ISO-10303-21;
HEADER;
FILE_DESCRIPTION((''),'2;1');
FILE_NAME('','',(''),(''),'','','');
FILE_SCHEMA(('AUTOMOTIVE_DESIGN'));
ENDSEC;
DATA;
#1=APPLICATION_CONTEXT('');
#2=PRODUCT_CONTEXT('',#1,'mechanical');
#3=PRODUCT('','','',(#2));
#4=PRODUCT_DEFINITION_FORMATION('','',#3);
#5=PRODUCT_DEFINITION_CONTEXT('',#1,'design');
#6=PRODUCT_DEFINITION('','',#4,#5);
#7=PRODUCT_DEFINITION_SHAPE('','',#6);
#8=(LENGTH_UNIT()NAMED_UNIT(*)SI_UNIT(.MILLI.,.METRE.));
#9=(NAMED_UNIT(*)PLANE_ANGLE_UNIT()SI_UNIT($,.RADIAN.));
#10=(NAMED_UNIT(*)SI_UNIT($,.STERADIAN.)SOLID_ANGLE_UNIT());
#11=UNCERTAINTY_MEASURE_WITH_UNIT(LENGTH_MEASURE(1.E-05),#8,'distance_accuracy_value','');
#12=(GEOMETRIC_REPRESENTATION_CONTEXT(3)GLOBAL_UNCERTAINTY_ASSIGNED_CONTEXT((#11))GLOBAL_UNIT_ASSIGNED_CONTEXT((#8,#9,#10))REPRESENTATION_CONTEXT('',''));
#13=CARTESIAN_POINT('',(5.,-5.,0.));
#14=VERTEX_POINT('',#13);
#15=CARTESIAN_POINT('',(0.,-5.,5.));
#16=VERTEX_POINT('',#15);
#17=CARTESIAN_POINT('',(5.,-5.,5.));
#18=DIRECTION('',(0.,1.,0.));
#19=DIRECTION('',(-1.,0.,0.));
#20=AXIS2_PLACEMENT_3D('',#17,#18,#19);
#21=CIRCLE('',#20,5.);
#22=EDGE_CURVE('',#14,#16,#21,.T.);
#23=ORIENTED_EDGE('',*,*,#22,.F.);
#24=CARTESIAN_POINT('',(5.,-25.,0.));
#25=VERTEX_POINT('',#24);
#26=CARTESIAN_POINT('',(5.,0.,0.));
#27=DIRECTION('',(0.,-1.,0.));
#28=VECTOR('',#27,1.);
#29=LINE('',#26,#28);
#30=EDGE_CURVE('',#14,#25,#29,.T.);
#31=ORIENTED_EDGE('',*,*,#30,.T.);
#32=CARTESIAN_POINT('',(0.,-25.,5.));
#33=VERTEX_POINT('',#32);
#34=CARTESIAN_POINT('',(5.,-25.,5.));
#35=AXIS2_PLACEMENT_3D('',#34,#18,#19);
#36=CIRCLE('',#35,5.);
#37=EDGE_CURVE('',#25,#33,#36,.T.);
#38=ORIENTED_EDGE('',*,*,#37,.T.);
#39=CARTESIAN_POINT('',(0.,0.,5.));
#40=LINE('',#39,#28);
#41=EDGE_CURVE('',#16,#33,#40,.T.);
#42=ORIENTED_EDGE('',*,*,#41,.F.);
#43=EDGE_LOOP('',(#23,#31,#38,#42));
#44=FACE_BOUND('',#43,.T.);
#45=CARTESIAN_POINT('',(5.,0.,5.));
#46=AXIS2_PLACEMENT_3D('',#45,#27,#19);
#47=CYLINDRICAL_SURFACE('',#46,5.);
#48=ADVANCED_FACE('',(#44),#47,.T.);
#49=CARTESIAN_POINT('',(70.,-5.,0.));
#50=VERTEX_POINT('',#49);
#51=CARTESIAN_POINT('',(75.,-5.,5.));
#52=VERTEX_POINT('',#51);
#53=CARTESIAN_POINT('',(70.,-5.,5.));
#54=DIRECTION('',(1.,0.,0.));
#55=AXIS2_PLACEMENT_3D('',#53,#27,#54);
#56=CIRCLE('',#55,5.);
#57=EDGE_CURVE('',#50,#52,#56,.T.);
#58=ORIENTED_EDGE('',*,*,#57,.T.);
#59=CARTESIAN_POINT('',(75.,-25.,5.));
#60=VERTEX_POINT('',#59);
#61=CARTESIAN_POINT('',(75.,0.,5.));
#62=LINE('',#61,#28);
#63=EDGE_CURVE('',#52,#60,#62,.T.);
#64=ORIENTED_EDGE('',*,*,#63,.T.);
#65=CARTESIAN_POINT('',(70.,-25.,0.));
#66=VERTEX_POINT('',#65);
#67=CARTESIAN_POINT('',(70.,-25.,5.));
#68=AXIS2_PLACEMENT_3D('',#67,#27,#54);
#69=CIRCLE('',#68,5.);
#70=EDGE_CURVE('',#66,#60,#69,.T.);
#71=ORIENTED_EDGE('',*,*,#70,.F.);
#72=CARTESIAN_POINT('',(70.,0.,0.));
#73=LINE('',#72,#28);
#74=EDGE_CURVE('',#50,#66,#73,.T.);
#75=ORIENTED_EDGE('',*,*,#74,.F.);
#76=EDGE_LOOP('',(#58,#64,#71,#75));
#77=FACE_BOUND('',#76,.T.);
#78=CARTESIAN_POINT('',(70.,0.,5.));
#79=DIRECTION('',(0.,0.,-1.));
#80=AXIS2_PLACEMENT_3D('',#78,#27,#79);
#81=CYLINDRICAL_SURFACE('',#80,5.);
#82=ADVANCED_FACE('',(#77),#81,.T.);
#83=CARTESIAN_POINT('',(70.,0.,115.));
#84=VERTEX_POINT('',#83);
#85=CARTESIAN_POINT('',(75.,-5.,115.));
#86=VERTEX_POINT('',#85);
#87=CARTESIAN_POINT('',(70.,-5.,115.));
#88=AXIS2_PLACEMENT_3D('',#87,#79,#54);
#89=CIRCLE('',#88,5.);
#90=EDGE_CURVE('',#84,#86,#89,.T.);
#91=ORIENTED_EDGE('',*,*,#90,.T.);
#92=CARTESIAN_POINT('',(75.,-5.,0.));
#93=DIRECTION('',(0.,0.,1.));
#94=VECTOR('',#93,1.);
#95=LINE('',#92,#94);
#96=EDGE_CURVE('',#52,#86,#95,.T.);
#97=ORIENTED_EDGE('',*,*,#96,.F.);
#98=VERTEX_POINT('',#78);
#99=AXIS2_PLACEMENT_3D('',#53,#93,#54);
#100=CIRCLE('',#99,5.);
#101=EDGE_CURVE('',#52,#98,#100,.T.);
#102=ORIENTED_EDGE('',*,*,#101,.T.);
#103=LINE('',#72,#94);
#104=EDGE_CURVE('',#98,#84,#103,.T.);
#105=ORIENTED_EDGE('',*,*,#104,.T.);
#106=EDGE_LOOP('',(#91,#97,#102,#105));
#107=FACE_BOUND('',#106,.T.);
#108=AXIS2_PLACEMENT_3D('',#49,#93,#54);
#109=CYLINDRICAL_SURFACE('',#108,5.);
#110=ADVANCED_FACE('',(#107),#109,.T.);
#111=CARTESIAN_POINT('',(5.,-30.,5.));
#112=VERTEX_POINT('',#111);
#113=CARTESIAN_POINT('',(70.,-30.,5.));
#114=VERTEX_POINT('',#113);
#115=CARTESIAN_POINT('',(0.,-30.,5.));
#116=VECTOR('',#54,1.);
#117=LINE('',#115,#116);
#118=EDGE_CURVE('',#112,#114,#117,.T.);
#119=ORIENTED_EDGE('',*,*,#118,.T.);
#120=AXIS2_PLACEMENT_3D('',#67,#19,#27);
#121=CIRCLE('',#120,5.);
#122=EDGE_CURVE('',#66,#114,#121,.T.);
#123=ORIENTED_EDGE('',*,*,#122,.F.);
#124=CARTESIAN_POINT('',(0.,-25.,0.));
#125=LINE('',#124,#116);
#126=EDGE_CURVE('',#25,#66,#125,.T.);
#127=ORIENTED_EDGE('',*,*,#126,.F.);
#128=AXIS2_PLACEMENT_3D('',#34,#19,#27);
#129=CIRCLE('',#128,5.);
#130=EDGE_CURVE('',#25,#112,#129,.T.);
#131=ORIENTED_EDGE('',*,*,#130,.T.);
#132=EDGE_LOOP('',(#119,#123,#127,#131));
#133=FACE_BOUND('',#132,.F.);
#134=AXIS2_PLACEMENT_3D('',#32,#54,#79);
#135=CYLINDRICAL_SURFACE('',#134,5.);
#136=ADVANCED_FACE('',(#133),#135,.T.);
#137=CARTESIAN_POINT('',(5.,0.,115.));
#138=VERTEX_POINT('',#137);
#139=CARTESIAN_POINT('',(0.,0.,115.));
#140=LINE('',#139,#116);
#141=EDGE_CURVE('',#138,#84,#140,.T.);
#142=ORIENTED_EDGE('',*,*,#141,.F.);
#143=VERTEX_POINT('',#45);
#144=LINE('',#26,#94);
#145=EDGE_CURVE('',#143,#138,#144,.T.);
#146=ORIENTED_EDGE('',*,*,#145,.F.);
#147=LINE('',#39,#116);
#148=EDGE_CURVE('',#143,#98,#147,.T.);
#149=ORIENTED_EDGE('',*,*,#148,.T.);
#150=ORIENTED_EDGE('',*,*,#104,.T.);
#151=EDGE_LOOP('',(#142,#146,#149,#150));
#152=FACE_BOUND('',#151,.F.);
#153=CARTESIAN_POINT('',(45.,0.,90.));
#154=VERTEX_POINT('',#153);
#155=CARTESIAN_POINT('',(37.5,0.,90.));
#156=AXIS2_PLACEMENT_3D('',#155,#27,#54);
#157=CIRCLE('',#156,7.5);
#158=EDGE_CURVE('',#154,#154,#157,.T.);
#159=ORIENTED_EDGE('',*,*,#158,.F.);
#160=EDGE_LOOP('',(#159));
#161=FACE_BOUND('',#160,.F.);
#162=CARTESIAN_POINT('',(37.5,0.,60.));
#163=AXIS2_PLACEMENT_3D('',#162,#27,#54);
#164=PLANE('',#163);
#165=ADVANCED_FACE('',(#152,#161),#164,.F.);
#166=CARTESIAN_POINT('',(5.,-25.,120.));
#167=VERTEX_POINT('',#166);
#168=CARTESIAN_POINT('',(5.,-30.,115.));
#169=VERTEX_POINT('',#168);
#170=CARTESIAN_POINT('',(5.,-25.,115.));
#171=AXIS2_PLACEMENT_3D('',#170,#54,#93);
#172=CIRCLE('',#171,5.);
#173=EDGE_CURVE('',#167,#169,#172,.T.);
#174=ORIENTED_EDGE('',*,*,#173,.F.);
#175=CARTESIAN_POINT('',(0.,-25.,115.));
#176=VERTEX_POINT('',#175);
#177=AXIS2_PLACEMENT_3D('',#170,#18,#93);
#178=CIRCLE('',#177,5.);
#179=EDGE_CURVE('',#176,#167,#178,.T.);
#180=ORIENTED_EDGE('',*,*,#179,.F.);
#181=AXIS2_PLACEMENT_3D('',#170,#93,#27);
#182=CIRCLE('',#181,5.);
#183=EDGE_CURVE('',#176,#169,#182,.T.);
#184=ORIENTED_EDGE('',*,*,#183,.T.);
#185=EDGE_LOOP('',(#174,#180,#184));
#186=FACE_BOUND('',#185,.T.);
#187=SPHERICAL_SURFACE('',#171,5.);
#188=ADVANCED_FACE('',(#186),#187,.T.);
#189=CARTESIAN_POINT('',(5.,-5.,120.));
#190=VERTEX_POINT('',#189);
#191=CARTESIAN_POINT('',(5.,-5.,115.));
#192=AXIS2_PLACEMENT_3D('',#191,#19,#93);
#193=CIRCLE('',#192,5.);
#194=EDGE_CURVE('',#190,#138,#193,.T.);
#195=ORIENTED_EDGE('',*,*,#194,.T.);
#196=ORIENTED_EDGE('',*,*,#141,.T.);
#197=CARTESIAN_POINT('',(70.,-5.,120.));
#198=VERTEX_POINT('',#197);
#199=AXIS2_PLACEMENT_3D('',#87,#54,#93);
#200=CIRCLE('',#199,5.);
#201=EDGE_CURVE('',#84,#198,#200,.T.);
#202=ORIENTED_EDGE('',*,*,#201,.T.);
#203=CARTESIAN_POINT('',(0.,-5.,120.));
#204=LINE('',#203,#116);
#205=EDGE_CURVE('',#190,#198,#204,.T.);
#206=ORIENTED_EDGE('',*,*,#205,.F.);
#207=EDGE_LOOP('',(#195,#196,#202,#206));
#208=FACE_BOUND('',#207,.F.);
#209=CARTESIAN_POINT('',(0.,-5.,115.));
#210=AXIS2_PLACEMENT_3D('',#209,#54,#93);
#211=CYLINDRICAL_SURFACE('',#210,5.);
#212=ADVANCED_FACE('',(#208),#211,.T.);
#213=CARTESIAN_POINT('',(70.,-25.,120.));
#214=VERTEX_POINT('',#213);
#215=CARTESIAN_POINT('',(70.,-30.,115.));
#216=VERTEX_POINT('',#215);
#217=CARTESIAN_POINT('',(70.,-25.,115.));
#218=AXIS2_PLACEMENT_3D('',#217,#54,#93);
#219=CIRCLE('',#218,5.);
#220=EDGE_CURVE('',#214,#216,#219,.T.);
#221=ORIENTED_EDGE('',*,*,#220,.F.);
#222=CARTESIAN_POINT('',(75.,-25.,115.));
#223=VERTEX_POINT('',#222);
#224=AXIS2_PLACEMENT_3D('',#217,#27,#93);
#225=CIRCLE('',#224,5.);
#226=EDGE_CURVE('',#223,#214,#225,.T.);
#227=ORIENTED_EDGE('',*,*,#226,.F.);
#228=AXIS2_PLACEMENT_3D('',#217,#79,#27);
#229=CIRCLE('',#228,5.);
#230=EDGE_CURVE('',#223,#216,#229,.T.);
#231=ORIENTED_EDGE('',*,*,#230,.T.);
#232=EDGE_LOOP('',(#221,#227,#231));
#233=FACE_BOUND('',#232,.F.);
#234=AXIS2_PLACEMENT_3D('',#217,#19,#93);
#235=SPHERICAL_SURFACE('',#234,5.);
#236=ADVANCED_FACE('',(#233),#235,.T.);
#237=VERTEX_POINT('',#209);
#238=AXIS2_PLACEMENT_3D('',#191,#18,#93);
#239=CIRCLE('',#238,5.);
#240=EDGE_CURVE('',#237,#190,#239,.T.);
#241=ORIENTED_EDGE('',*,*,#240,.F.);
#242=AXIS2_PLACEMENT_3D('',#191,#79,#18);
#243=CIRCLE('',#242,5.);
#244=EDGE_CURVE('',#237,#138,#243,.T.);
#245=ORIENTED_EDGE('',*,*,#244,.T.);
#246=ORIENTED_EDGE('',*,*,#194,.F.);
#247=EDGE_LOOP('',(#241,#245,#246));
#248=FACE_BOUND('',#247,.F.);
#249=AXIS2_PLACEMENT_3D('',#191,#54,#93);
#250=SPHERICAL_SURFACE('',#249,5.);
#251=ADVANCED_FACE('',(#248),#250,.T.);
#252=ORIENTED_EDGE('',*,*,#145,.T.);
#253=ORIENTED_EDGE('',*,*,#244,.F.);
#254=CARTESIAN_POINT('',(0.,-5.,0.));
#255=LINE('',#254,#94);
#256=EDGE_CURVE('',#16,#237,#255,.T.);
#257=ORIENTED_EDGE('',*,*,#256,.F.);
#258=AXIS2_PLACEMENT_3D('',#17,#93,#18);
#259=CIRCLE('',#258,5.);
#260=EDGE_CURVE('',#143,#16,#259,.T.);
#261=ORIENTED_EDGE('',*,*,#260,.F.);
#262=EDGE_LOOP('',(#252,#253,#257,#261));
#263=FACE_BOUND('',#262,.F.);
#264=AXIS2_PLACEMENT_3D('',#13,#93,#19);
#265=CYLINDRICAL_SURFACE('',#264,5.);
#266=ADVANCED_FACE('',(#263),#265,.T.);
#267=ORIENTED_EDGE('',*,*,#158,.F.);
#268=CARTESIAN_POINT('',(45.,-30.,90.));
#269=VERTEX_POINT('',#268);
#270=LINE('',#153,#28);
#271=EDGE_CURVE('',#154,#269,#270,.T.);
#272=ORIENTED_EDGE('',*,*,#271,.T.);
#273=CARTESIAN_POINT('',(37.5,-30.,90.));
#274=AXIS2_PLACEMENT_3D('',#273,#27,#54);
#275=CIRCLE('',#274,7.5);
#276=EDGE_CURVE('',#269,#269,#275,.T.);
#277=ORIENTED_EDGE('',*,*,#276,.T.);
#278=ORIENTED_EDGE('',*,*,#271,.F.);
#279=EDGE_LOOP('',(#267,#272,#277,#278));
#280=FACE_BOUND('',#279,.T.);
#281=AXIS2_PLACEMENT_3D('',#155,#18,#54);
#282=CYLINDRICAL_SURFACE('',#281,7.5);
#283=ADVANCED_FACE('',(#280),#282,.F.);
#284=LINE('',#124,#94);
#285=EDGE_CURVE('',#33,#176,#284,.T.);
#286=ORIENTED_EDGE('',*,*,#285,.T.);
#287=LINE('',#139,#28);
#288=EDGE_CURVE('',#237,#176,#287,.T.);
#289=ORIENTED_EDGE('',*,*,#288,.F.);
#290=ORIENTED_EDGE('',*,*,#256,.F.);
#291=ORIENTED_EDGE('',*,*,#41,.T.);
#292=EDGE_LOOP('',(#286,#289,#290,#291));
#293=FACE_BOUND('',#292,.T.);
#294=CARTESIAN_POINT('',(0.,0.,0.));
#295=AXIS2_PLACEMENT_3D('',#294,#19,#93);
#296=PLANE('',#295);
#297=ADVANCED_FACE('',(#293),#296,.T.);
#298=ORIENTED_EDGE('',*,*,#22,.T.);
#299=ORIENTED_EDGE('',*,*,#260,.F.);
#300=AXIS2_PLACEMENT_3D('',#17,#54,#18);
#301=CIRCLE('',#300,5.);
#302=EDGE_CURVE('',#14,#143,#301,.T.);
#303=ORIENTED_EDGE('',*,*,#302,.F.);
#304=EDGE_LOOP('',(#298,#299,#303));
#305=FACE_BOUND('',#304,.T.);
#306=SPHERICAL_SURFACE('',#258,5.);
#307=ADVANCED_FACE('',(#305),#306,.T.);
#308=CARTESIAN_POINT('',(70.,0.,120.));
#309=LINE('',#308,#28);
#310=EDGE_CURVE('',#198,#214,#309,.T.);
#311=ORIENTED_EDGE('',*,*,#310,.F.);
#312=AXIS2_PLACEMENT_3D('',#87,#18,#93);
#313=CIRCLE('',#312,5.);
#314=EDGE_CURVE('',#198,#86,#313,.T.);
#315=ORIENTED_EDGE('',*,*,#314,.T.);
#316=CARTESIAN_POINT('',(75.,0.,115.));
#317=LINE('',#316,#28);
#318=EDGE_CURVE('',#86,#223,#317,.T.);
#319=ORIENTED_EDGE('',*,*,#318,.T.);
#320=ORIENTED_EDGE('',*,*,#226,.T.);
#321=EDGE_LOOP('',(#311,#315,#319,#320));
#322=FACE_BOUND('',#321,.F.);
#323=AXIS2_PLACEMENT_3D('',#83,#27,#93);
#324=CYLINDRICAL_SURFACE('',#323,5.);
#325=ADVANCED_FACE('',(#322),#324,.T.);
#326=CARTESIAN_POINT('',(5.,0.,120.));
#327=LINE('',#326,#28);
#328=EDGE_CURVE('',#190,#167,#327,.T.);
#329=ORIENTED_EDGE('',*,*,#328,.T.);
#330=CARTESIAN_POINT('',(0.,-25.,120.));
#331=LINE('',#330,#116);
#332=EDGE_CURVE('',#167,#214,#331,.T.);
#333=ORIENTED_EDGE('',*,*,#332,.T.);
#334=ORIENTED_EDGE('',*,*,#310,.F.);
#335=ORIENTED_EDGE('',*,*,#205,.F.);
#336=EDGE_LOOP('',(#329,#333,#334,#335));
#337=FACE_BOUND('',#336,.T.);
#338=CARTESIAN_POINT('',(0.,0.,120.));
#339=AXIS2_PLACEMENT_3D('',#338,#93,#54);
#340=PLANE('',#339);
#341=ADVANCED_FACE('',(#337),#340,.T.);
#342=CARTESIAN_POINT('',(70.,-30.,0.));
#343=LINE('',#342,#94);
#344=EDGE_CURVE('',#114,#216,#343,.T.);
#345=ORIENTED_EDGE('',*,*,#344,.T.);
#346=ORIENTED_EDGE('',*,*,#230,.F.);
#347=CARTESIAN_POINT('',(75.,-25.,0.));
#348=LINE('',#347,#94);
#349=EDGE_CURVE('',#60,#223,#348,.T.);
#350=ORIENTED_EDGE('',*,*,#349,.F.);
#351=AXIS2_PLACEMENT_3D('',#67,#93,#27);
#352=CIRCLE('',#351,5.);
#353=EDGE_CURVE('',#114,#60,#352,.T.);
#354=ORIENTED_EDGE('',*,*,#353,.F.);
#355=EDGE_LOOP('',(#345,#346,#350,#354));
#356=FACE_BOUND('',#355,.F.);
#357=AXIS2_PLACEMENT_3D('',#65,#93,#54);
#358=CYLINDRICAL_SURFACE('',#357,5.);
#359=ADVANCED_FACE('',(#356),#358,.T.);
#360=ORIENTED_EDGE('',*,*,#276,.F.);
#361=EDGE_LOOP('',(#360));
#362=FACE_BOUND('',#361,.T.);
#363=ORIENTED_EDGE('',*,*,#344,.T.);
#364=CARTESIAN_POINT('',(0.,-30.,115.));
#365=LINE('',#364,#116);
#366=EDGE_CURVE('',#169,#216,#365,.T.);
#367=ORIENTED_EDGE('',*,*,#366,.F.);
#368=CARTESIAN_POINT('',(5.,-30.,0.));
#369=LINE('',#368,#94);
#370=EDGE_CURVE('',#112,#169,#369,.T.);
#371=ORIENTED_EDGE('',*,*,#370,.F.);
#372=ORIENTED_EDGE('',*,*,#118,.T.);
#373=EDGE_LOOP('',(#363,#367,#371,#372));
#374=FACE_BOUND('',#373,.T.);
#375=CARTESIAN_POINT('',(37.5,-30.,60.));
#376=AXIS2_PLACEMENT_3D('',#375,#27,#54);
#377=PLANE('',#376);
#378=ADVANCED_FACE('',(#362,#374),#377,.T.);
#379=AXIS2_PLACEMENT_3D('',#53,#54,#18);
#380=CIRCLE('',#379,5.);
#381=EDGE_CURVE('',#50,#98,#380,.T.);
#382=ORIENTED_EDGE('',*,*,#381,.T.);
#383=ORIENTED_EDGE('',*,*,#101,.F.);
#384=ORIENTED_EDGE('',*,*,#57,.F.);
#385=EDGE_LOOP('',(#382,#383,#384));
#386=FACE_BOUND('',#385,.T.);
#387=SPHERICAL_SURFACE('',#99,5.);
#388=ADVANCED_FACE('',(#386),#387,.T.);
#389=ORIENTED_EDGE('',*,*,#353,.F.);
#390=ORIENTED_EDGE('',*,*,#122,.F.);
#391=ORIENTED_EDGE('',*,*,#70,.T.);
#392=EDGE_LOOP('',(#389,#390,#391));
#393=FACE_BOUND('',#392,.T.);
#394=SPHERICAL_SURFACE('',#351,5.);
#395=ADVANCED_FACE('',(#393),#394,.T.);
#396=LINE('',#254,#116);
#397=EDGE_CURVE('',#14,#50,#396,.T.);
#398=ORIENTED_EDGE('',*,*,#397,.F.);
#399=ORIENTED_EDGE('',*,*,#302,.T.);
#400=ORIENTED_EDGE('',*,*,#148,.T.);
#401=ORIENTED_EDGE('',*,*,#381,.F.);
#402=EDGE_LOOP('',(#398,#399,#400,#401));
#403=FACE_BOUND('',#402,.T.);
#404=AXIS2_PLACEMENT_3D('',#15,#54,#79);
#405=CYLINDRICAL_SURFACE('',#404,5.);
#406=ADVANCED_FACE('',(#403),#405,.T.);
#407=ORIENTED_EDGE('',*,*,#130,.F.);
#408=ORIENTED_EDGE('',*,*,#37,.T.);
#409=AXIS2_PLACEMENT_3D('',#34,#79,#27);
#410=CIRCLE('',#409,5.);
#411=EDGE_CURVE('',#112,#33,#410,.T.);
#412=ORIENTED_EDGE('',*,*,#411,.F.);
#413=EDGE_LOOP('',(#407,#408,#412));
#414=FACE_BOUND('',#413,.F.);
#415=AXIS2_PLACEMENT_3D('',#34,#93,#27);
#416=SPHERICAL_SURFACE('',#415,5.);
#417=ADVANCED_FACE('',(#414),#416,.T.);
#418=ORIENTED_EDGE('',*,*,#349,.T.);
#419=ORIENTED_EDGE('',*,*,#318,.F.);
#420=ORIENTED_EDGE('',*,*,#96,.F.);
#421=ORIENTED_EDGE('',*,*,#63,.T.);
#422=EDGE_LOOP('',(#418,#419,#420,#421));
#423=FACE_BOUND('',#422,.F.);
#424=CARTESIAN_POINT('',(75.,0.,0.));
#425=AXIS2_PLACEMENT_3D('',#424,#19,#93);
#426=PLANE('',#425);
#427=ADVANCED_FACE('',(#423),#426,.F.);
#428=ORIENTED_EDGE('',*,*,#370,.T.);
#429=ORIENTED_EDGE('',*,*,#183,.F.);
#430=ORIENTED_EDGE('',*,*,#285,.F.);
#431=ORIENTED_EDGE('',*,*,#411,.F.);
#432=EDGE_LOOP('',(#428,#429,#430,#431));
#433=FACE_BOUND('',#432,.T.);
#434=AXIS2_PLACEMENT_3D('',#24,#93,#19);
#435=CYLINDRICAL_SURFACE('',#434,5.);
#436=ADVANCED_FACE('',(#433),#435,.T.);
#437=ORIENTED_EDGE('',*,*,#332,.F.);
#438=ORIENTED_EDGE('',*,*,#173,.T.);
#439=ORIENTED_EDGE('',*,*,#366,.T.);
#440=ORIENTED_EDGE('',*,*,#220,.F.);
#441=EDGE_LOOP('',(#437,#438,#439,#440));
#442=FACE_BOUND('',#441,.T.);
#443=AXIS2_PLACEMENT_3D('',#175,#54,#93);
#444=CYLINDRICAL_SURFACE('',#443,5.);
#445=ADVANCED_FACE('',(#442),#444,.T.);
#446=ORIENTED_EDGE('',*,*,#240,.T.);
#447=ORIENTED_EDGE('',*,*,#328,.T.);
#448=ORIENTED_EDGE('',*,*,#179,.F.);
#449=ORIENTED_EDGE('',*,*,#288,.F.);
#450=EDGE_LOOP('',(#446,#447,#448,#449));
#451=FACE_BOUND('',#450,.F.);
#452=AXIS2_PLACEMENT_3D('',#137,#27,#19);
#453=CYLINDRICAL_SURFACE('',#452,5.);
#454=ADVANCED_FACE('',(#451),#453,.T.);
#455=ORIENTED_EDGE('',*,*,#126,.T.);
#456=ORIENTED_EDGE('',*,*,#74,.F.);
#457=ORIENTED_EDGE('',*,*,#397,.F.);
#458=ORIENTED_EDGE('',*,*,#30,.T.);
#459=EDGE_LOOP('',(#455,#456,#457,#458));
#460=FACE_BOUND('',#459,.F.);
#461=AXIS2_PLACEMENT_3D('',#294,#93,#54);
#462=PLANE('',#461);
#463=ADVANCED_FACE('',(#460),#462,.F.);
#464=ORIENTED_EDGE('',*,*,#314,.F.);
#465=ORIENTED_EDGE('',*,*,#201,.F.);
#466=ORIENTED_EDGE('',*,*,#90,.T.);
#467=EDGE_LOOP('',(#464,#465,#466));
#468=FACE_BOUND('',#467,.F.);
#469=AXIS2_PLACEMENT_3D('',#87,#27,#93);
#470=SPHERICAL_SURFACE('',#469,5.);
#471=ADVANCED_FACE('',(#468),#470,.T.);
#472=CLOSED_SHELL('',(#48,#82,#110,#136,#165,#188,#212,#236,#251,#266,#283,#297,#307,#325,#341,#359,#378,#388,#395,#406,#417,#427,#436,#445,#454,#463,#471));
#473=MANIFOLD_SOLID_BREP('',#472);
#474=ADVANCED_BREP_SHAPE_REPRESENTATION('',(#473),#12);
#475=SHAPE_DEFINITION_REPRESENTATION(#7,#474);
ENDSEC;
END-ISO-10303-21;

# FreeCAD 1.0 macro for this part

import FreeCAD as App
import Part
import Sketcher

V = App.Vector


def edges_at(feature, points):
    """Names of the edges that pass closest to the given points."""
    edges = feature.Shape.Edges
    near = lambda p: min(range(len(edges)), key=lambda i: edges[i].distToShape(Part.Vertex(*p))[0])
    return sorted({f"Edge{near(p) + 1}" for p in points})

doc = App.newDocument("Part")
body = doc.addObject("PartDesign::Body", "Body")

# Sketch on XZ plane
sketch1 = body.newObject("Sketcher::SketchObject", "Sketch")
sketch1.AttachmentSupport = (doc.getObject("XZ_Plane"), [""])
sketch1.MapMode = "FlatFace"
sketch1.addGeometry([
    Part.LineSegment(V(0, 120, 0), V(0, 0, 0)),  # 0
    Part.LineSegment(V(0, 0, 0), V(75, 0, 0)),  # 1
    Part.LineSegment(V(75, 0, 0), V(75, 120, 0)),  # 2
    Part.LineSegment(V(75, 120, 0), V(0, 120, 0)),  # 3
    Part.Circle(V(38, 90, 0), V(0, 0, 1), 8),  # 4
], False)
sketch1.addConstraint([
    Sketcher.Constraint("Coincident", 0, 2, 1, 1),
    Sketcher.Constraint("Coincident", 1, 2, 2, 1),
    Sketcher.Constraint("Coincident", 2, 2, 3, 1),
    Sketcher.Constraint("Coincident", 3, 2, 0, 1),
    Sketcher.Constraint("Vertical", 0),
    Sketcher.Constraint("Horizontal", 1),
    Sketcher.Constraint("Vertical", 2),
    Sketcher.Constraint("Horizontal", 3),
    Sketcher.Constraint("Coincident", 0, 2, -1, 1),
    Sketcher.Constraint("Diameter", 4, 15.0),
    Sketcher.Constraint("DistanceX", 1, 1, 1, 2, 75.0),
    Sketcher.Constraint("DistanceY", 0, 2, 0, 1, 120.0),
    Sketcher.Constraint("DistanceY", -1, 1, 4, 3, 90.0),
    Sketcher.Constraint("DistanceX", -1, 1, 4, 3, 37.5),
])
pad1 = body.newObject("PartDesign::Pad", "Pad")
pad1.Profile = sketch1
pad1.Length = 30
doc.recompute()

fillet = body.newObject("PartDesign::Fillet", "Fillet")
fillet.Base = (pad1, edges_at(pad1, [
    (37.5, -30, 120),
    (75, -15, 120),
    (37.5, 0, 120),
    (0, -15, 120),
    (0, 0, 60),
    (0, -30, 60),
    (75, 0, 60),
    (75, -30, 60),
    (37.5, -30, 0),
    (75, -15, 0),
    (37.5, 0, 0),
    (0, -15, 0),
]))
fillet.Radius = 5

doc.recompute()
